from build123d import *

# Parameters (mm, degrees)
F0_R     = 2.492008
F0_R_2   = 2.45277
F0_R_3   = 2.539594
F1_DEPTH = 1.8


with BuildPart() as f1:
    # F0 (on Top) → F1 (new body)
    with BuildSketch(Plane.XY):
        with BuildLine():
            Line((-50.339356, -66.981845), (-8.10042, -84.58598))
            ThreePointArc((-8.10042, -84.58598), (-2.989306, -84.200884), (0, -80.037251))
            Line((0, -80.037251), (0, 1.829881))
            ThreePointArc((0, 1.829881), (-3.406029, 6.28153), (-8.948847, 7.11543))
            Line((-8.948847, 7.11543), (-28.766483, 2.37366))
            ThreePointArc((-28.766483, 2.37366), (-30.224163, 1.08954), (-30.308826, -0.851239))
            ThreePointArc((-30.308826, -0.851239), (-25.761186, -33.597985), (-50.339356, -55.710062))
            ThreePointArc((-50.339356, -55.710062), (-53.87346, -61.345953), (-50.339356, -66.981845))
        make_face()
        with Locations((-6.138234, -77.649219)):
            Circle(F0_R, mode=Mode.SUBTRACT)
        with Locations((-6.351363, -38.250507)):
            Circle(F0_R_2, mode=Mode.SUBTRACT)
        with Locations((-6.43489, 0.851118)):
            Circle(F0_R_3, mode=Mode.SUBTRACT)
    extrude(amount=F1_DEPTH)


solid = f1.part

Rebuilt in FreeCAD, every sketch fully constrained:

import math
import FreeCAD as App
import Part
import Sketcher

doc = App.newDocument("Part")
body = doc.addObject("PartDesign::Body", "Body")

# Sketch on XY plane
sketch1 = body.newObject("Sketcher::SketchObject", "Sketch")
sketch1.AttachmentSupport = (doc.getObject("XY_Plane"), [""])
sketch1.MapMode = "FlatFace"
sketch1.addGeometry(Part.LineSegment(App.Vector(-50.339356, -66.981845, 0), App.Vector(-8.10042, -84.58598, 0)), False)
sketch1.addGeometry(Part.ArcOfCircle(Part.Circle(App.Vector(-5.957647, -78.914833, 0), App.Vector(0, 0, 1), 6.062457), math.radians(-110.698455), math.radians(-10.669433)), False)
sketch1.addGeometry(Part.LineSegment(App.Vector(0, -80.037251, 0), App.Vector(0, 1.829881, 0)), False)
sketch1.addGeometry(Part.ArcOfCircle(Part.Circle(App.Vector(-7.208803, -0.156863, 0), App.Vector(0, 0, 1), 7.477566), math.radians(15.408191), math.radians(103.456194)), False)
sketch1.addGeometry(Part.LineSegment(App.Vector(-8.948847, 7.11543, 0), App.Vector(-28.766483, 2.37366, 0)), False)
sketch1.addGeometry(Part.ArcOfCircle(Part.Circle(App.Vector(-27.987273, 0.019724, 0), App.Vector(0, 0, 1), 2.479554), math.radians(108.315802), math.radians(200.564268)), False)
sketch1.addGeometry(Part.ArcOfCircle(Part.Circle(App.Vector(-58.874456, -21.50738, 0), App.Vector(0, 0, 1), 35.251544), math.radians(-75.988308), math.radians(35.871132)), False)
sketch1.addGeometry(Part.ArcOfCircle(Part.Circle(App.Vector(-47.612585, -61.345954, 0), App.Vector(0, 0, 1), 6.260875), math.radians(115.818738), math.radians(244.181262)), False)
sketch1.addGeometry(Part.Circle(App.Vector(-6.138234, -77.649219, 0), App.Vector(0, 0, 1), 2.492008), False)
sketch1.addGeometry(Part.Circle(App.Vector(-6.351363, -38.250507, 0), App.Vector(0, 0, 1), 2.45277), False)
sketch1.addGeometry(Part.Circle(App.Vector(-6.43489, 0.851118, 0), App.Vector(0, 0, 1), 2.539594), False)
sketch1.addConstraint(Sketcher.Constraint("Coincident", 0, 2, 1, 1))
sketch1.addConstraint(Sketcher.Constraint("Coincident", 1, 2, 2, 1))
sketch1.addConstraint(Sketcher.Constraint("Coincident", 2, 2, 3, 1))
sketch1.addConstraint(Sketcher.Constraint("Tangent", 3, 2, 4, 1))
sketch1.addConstraint(Sketcher.Constraint("Coincident", 4, 2, 5, 1))
sketch1.addConstraint(Sketcher.Constraint("Coincident", 5, 2, 6, 2))
sketch1.addConstraint(Sketcher.Constraint("Coincident", 6, 1, 7, 1))
sketch1.addConstraint(Sketcher.Constraint("Coincident", 7, 2, 0, 1))
sketch1.addConstraint(Sketcher.Constraint("Vertical", 2))
sketch1.addConstraint(Sketcher.Constraint("PointOnObject", 1, 2, -2))
sketch1.addConstraint(Sketcher.Constraint("Vertical", 6, 1, 7, 2))
sketch1.addConstraint(Sketcher.Constraint("Diameter", 9, 4.90554))
sketch1.addConstraint(Sketcher.Constraint("Diameter", 10, 5.079188))
sketch1.addConstraint(Sketcher.Constraint("Diameter", 8, 4.984016))
sketch1.addConstraint(Sketcher.Constraint("Radius", 1, 6.062457))
sketch1.addConstraint(Sketcher.Constraint("Radius", 3, 7.477566))
sketch1.addConstraint(Sketcher.Constraint("Radius", 5, 2.479554))
sketch1.addConstraint(Sketcher.Constraint("Radius", 6, 35.251544))
sketch1.addConstraint(Sketcher.Constraint("Radius", 7, 6.260875))
sketch1.addConstraint(Sketcher.Constraint("DistanceY", 2, 1, 2, 2, 81.867132))
sketch1.addConstraint(Sketcher.Constraint("DistanceY", 6, 3, 10, 3, 22.358498))
sketch1.addConstraint(Sketcher.Constraint("DistanceY", 0, 2, 6, 3, 63.0786))
sketch1.addConstraint(Sketcher.Constraint("DistanceY", 5, 2, 4, 2, 3.224899))
sketch1.addConstraint(Sketcher.Constraint("DistanceX", 6, 3, 6, 1, 8.5351))
sketch1.addConstraint(Sketcher.Constraint("Distance", 0, 45.760608))
sketch1.addConstraint(Sketcher.Constraint("DistanceY", 6, 3, -1, 1, 21.50738))
sketch1.addConstraint(Sketcher.Constraint("DistanceY", 8, 3, -1, 1, 77.649219))
sketch1.addConstraint(Sketcher.Constraint("DistanceX", 10, 3, -1, 1, 6.43489))
sketch1.addConstraint(Sketcher.Constraint("DistanceX", 0, 2, -1, 1, 8.10042))
sketch1.addConstraint(Sketcher.Constraint("DistanceY", 1, 2, -1, 1, 80.037251))
sketch1.addConstraint(Sketcher.Constraint("DistanceY", -1, 1, 3, 2, 7.11543))
sketch1.addConstraint(Sketcher.Constraint("DistanceY", -1, 1, 4, 2, 2.37366))
sketch1.addConstraint(Sketcher.Constraint("DistanceY", 1, 3, 3, 3, 78.75797))
sketch1.addConstraint(Sketcher.Constraint("DistanceX", 5, 3, 3, 3, 20.778469))
sketch1.addConstraint(Sketcher.Constraint("DistanceX", 7, 3, 8, 3, 41.474351))
sketch1.addConstraint(Sketcher.Constraint("DistanceX", 3, 3, 9, 3, 0.85744))
sketch1.addConstraint(Sketcher.Constraint("DistanceY", 9, 3, 5, 3, 38.270231))
pad1 = body.newObject("PartDesign::Pad", "Pad")
pad1.Profile = sketch1
pad1.Length = 1.8

doc.recompute()
